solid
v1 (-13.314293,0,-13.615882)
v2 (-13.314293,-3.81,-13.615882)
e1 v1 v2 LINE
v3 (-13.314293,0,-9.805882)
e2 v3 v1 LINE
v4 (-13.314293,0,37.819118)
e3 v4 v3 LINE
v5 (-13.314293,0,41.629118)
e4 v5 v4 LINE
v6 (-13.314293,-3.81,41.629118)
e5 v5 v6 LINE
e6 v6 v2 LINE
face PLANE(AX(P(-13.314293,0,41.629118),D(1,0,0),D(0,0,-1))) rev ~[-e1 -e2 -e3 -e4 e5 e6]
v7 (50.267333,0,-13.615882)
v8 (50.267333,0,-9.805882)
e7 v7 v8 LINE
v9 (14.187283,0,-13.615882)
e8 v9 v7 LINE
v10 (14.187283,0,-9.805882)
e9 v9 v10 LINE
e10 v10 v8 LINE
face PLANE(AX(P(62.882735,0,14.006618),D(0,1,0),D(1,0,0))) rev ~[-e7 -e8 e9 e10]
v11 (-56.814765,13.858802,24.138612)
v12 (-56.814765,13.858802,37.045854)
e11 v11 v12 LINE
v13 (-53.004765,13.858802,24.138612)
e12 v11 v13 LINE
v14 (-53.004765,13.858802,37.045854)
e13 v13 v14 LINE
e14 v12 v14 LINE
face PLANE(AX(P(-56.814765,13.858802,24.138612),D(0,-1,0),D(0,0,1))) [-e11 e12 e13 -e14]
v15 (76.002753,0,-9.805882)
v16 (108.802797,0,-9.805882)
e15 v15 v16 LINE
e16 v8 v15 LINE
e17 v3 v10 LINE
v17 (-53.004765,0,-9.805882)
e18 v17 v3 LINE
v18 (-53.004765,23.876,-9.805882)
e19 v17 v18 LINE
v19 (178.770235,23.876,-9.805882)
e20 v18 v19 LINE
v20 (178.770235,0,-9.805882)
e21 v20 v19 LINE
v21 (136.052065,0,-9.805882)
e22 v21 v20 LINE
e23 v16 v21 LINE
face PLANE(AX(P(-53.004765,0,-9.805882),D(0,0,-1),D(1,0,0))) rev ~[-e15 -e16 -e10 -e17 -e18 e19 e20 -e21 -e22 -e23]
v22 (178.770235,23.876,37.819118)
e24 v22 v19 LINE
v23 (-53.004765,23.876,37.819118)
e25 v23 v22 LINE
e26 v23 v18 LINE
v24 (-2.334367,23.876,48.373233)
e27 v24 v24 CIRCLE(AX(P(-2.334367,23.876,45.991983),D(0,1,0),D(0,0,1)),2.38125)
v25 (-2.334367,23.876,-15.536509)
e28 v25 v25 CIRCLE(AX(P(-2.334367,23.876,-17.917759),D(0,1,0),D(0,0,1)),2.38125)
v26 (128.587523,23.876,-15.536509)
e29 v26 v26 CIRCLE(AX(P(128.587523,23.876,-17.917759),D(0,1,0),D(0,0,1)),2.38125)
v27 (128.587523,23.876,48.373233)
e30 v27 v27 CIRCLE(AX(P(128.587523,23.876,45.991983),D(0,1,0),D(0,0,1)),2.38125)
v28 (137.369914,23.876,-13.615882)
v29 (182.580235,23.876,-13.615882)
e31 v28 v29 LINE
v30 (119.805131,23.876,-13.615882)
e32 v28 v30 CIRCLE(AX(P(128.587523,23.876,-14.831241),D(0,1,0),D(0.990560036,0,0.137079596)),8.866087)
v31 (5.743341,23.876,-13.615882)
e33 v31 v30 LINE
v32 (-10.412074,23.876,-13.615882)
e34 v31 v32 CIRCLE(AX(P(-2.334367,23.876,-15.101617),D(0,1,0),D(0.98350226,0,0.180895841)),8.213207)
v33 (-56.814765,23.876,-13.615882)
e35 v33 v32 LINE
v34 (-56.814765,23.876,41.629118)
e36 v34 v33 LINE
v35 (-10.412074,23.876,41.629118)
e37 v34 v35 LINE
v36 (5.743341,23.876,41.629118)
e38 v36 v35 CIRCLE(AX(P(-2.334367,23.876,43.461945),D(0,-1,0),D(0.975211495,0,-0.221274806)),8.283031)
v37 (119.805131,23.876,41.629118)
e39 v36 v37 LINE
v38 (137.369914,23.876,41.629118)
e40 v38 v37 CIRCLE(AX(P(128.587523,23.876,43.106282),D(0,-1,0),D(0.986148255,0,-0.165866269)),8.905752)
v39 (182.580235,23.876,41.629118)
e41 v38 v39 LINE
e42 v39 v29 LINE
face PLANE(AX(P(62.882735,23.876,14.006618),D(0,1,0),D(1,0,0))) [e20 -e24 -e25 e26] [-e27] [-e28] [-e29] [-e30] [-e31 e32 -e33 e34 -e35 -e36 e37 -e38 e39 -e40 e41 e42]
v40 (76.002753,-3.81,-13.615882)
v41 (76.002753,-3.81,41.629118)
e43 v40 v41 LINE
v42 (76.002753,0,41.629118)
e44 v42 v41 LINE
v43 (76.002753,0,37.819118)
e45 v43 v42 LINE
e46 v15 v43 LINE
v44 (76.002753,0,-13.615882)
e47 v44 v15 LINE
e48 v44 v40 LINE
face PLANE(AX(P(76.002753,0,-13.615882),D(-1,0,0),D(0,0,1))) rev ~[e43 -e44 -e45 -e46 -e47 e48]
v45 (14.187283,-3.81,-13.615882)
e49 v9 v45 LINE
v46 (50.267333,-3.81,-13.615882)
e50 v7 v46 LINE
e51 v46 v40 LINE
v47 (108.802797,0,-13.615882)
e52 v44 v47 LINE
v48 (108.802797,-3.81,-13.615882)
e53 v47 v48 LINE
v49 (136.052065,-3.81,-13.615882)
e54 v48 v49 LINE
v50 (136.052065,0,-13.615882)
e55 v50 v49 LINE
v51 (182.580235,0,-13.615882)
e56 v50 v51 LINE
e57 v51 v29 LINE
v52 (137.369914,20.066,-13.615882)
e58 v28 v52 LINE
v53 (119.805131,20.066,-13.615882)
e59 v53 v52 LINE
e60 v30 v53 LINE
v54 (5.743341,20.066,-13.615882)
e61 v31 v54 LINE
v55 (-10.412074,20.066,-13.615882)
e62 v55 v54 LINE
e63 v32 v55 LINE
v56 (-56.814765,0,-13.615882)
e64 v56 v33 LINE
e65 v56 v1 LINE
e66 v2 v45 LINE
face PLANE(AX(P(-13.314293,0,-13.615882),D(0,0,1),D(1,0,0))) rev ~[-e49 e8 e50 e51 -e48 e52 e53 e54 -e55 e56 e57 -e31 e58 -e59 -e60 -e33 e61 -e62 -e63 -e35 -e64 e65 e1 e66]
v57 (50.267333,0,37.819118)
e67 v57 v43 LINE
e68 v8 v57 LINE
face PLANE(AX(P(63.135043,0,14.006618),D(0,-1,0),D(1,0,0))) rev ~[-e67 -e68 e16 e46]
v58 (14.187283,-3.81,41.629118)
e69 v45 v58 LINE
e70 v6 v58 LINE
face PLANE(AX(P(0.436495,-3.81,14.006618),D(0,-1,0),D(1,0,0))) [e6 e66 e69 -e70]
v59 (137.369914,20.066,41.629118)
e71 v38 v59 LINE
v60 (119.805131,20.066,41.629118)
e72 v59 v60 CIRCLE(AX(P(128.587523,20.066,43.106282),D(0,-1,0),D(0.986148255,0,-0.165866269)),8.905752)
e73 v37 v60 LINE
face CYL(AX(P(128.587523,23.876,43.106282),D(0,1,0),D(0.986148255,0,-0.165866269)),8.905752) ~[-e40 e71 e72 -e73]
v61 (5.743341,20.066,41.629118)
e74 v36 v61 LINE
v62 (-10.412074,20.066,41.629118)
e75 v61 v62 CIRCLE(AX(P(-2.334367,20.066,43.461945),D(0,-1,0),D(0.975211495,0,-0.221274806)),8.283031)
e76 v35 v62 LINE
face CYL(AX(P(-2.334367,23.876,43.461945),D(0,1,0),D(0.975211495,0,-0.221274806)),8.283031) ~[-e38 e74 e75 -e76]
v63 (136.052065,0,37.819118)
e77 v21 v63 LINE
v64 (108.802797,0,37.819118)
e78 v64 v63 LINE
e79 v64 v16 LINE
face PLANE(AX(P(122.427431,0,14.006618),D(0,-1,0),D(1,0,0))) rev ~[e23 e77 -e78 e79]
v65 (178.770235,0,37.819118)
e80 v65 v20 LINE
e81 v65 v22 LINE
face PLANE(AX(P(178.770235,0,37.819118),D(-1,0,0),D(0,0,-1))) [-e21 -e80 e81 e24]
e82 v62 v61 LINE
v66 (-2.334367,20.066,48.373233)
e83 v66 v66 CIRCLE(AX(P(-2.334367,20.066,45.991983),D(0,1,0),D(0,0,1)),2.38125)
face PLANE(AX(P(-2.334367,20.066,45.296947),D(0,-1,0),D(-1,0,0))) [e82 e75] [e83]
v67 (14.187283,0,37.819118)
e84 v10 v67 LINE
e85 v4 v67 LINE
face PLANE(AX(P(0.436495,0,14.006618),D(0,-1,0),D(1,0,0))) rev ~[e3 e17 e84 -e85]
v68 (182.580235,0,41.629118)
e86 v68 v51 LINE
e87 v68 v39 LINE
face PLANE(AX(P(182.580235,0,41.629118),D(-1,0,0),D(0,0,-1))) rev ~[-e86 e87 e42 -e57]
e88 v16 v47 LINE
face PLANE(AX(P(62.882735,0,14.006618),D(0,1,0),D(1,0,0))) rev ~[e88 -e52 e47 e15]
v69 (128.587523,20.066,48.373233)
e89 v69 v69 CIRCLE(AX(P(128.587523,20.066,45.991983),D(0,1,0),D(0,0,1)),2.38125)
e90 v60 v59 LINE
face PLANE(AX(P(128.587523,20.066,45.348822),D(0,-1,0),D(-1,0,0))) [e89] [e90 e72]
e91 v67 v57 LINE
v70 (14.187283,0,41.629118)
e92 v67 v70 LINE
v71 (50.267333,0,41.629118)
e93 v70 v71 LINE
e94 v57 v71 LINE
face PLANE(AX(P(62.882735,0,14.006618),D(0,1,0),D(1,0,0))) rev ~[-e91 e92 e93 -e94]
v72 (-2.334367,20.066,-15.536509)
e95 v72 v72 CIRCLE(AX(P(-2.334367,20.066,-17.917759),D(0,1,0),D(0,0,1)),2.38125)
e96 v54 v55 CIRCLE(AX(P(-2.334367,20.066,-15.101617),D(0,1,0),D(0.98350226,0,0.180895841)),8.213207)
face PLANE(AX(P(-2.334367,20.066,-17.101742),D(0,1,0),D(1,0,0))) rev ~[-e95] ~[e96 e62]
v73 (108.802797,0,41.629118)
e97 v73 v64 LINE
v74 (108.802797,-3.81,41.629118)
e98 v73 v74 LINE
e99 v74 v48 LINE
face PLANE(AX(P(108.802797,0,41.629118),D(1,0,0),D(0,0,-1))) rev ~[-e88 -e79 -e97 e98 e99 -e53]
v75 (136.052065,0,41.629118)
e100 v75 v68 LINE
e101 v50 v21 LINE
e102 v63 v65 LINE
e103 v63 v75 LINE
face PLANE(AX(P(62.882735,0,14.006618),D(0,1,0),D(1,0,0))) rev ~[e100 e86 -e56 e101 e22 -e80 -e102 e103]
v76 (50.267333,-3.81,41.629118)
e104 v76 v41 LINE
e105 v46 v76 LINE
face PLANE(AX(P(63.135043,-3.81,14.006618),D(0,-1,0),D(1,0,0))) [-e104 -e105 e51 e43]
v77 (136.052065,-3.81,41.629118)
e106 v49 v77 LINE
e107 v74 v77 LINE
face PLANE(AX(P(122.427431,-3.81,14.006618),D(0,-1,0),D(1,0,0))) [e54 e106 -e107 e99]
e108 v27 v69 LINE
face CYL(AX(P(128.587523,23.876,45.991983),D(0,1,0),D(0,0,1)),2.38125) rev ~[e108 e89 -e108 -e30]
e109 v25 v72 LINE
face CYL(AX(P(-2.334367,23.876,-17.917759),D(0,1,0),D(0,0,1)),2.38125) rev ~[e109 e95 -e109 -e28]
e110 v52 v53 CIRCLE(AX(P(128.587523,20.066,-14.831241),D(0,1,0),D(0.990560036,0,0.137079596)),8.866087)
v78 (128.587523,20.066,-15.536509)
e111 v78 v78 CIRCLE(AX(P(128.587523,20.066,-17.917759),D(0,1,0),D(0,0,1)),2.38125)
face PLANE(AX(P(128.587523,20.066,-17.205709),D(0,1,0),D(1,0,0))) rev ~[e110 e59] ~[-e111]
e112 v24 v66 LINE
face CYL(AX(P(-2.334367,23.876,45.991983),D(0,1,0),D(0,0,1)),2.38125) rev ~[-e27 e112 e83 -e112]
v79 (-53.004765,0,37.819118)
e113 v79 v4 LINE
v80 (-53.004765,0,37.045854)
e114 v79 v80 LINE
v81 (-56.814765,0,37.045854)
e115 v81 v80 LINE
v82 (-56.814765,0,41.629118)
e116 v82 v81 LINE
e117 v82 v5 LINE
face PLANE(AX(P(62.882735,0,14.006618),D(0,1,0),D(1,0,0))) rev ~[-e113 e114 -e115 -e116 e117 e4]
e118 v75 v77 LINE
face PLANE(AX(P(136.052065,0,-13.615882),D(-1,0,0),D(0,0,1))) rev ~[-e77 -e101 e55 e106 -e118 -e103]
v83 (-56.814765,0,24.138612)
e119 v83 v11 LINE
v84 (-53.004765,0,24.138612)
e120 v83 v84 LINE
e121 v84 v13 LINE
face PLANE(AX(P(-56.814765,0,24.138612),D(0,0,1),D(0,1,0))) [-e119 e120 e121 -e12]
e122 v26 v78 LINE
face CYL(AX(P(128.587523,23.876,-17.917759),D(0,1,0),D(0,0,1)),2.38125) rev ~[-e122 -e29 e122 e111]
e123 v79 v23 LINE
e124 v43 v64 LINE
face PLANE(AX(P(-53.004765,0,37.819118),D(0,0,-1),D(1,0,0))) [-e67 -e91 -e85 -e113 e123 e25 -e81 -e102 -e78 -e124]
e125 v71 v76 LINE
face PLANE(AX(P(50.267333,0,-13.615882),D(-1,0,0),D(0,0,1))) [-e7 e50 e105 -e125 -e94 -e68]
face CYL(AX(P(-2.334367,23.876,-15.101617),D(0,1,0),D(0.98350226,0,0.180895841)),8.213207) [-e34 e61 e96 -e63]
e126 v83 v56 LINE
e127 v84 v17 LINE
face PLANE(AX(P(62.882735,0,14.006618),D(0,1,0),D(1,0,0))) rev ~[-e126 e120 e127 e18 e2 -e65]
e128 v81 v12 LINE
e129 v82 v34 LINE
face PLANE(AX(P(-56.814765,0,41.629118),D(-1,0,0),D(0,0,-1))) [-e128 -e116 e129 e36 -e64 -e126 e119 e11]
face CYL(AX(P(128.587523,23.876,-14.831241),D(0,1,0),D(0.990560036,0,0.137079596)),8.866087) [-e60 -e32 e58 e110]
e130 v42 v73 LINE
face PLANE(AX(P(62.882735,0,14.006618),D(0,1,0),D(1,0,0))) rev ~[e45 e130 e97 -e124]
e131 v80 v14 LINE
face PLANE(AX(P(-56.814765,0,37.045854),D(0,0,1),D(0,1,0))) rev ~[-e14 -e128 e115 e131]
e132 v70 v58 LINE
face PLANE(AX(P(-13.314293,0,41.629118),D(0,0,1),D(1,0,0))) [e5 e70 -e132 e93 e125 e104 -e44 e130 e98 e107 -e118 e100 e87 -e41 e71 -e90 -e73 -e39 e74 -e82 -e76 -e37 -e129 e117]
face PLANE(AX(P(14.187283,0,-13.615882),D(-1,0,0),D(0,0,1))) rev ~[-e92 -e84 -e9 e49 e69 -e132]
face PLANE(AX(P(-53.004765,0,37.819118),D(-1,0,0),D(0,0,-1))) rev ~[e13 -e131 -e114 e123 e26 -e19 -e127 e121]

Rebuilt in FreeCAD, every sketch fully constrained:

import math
import FreeCAD as App
import Part
import Sketcher

V = App.Vector
Q = App.Units.Quantity


def add_polygon(sketch, points):
    """Adds a closed chain of lines whose ends are joined by coincident constraints."""
    first, n = sketch.GeometryCount, len(points)
    for a, b in zip(points, points[1:] + points[:1]):
        sketch.addGeometry(Part.LineSegment(App.Vector(*a, 0), App.Vector(*b, 0)), False)
    for i in range(n):
        sketch.addConstraint(Sketcher.Constraint("Coincident", first + i, 2, first + (i + 1) % n, 1))

doc = App.newDocument("Part")
params = doc.addObject("Spreadsheet::Sheet", "Params")
for row, (alias, value) in enumerate([
    ("sketch1_width", "9.425 in"),
    ("sketch1_width2", "9.125 in"),
    ("sketch1_height", "2.175 in"),
    ("sketch1_height2", "1.875 in"),
    ("pad1_length", "0.94 in"),
    ("sketch2_height", "2.175 in"),
    ("pad2_length", "0.15 in"),
    ("pocket1_length", "0.15 in"),
    ("sketch4_diameter", "0.1875 in"),
    ("pad3_length", "0.15 in"),
], start=1):
    params.set(f"A{row}", alias)
    params.set(f"B{row}", "=" + value)
    params.setAlias(f"B{row}", alias)

body = doc.addObject("PartDesign::Body", "Body")

sketch1 = body.newObject("Sketcher::SketchObject", "Sketch")
sketch1.AttachmentSupport = (doc.getObject("XZ_Plane"), [""])
sketch1.MapMode = "FlatFace"
add_polygon(sketch1, [(-56.814765, -13.615882), (-56.814765, 41.629118), (182.580235, 41.629118), (182.580235, -13.615882)])
add_polygon(sketch1, [(178.770235, 37.819118), (-53.004765, 37.819118), (-53.004765, -9.805882), (178.770235, -9.805882)])
sketch1.addConstraint([
    Sketcher.Constraint("Vertical", 0),
    Sketcher.Constraint("Horizontal", 1),
    Sketcher.Constraint("Vertical", 2),
    Sketcher.Constraint("Horizontal", 3),
    Sketcher.Constraint("Horizontal", 4),
    Sketcher.Constraint("Vertical", 5),
    Sketcher.Constraint("Horizontal", 6),
    Sketcher.Constraint("Vertical", 7),
    Sketcher.Constraint("DistanceX", 1, 1, 1, 2, Q("9.425 in")),
    Sketcher.Constraint("DistanceX", 4, 2, 4, 1, Q("9.125 in")),
    Sketcher.Constraint("DistanceY", 0, 1, 0, 2, Q("2.175 in")),
    Sketcher.Constraint("DistanceY", 5, 2, 5, 1, Q("1.875 in")),
    Sketcher.Constraint("DistanceX", 0, 2, 4, 2, Q("0.15 in")),
    Sketcher.Constraint("DistanceY", 4, 2, 0, 2, Q("0.15 in")),
    Sketcher.Constraint("DistanceY", -1, 1, 0, 2, Q("41.629118 mm")),
    Sketcher.Constraint("DistanceX", 0, 2, -1, 1, Q("56.814765 mm")),
])
sketch1.setExpression("Constraints[16]", "Params.sketch1_width")
sketch1.setExpression("Constraints[17]", "Params.sketch1_width2")
sketch1.setExpression("Constraints[18]", "Params.sketch1_height")
sketch1.setExpression("Constraints[19]", "Params.sketch1_height2")
pad1 = body.newObject("PartDesign::Pad", "Pad")
pad1.Profile = sketch1
pad1.setExpression("Length", "Params.pad1_length")
pad1.Reversed = True

sketch2 = body.newObject("Sketcher::SketchObject", "Sketch001")
sketch2.AttachmentSupport = (doc.getObject("XZ_Plane"), [""])
sketch2.MapMode = "FlatFace"
add_polygon(sketch2, [(14.187283, 41.629118), (-13.314293, 41.629118), (-13.314293, -13.615882), (14.187283, -13.615882)])
add_polygon(sketch2, [(136.052065, 41.629118), (108.802797, 41.629118), (108.802797, -13.615882), (136.052065, -13.615882)])
add_polygon(sketch2, [(50.267333, 41.629118), (50.267333, -13.615882), (76.002753, -13.615882), (76.002753, 41.629118)])
sketch2.addConstraint([
    Sketcher.Constraint("Horizontal", 0),
    Sketcher.Constraint("Vertical", 1),
    Sketcher.Constraint("Horizontal", 2),
    Sketcher.Constraint("Vertical", 3),
    Sketcher.Constraint("Horizontal", 4),
    Sketcher.Constraint("Vertical", 5),
    Sketcher.Constraint("Horizontal", 6),
    Sketcher.Constraint("Vertical", 7),
    Sketcher.Constraint("Vertical", 8),
    Sketcher.Constraint("Horizontal", 9),
    Sketcher.Constraint("Vertical", 10),
    Sketcher.Constraint("Horizontal", 11),
    Sketcher.Constraint("Horizontal", 3, 2, 4, 2),
    Sketcher.Constraint("Horizontal", 2, 2, 5, 2),
    Sketcher.Constraint("Horizontal", 6, 2, 8, 2),
    Sketcher.Constraint("Horizontal", 7, 2, 10, 2),
    Sketcher.Constraint("DistanceY", 1, 2, 1, 1, Q("2.175 in")),
    Sketcher.Constraint("DistanceX", 4, 2, 4, 1, Q("27.249268 mm")),
    Sketcher.Constraint("DistanceX", 9, 1, 9, 2, Q("25.73542 mm")),
    Sketcher.Constraint("DistanceX", 0, 2, 0, 1, Q("27.501576 mm")),
    Sketcher.Constraint("DistanceY", -1, 1, 0, 2, Q("41.629118 mm")),
    Sketcher.Constraint("DistanceX", 0, 2, 4, 2, Q("122.11709 mm")),
    Sketcher.Constraint("DistanceX", 2, 2, 8, 2, Q("36.080049 mm")),
    Sketcher.Constraint("DistanceX", 0, 2, -1, 1, Q("13.314293 mm")),
])
sketch2.setExpression("Constraints[28]", "Params.sketch2_height")
pad2 = body.newObject("PartDesign::Pad", "Pad001")
pad2.Profile = sketch2
pad2.setExpression("Length", "Params.pad2_length")

sketch3 = body.newObject("Sketcher::SketchObject", "Sketch002")
sketch3.AttachmentSupport = (doc.getObject("YZ_Plane"), [""])
sketch3.MapMode = "FlatFace"
sketch3.AttachmentOffset = App.Placement(V(0, 0, -56.814765), App.Rotation())
add_polygon(sketch3, [(13.858802, 24.138612), (0, 24.138612), (0, 37.045854), (13.858802, 37.045854)])
sketch3.addConstraint([
    Sketcher.Constraint("Horizontal", 0),
    Sketcher.Constraint("Vertical", 1),
    Sketcher.Constraint("Horizontal", 2),
    Sketcher.Constraint("Vertical", 3),
    Sketcher.Constraint("PointOnObject", 0, 2, -2),
    Sketcher.Constraint("DistanceX", 0, 2, 0, 1, Q("13.858802 mm")),
    Sketcher.Constraint("DistanceY", 1, 1, 1, 2, Q("12.907243 mm")),
    Sketcher.Constraint("DistanceY", -1, 1, 0, 2, Q("24.138612 mm")),
])
pocket1 = body.newObject("PartDesign::Pocket", "Pocket")
pocket1.Profile = sketch3
pocket1.setExpression("Length", "Params.pocket1_length")
pocket1.Reversed = True

sketch4 = body.newObject("Sketcher::SketchObject", "Sketch003")
sketch4.AttachmentSupport = (doc.getObject("XZ_Plane"), [""])
sketch4.MapMode = "FlatFace"
sketch4.AttachmentOffset = App.Placement(V(0, 0, -0.94 * 25.4), App.Rotation())
sketch4.addGeometry([
    Part.LineSegment(V(-10.412074, -13.615882, 0), V(5.743341, -13.615882, 0)),
    Part.ArcOfCircle(Part.Circle(V(-2.334367, -15.101617, 0), V(0, 0, 1), 8.213207), math.radians(169.578056), math.radians(370.421944)),
    Part.Circle(V(-2.334367, -17.917759, 0), V(0, 0, 1), 2.38125),
    Part.LineSegment(V(5.743341, 41.629118, 0), V(-10.412074, 41.629118, 0)),
    Part.ArcOfCircle(Part.Circle(V(-2.334367, 43.461945, 0), V(0, 0, 1), 8.283031), math.radians(-12.78392), math.radians(192.78392)),
    Part.Circle(V(-2.334367, 45.991983, 0), V(0, 0, 1), 2.38125),
    Part.LineSegment(V(137.369914, 41.629118, 0), V(119.805131, 41.629118, 0)),
    Part.ArcOfCircle(Part.Circle(V(128.587523, 43.106282, 0), V(0, 0, 1), 8.905752), math.radians(-9.547561), math.radians(189.547561)),
    Part.Circle(V(128.587523, 45.991983, 0), V(0, 0, 1), 2.38125),
    Part.LineSegment(V(119.805131, -13.615882, 0), V(137.369914, -13.615882, 0)),
    Part.ArcOfCircle(Part.Circle(V(128.587523, -14.831241, 0), V(0, 0, 1), 8.866087), math.radians(172.12111), math.radians(367.87889)),
    Part.Circle(V(128.587523, -17.917759, 0), V(0, 0, 1), 2.38125),
], False)
sketch4.addConstraint([
    Sketcher.Constraint("Coincident", 0, 1, 1, 1),
    Sketcher.Constraint("Coincident", 1, 2, 0, 2),
    Sketcher.Constraint("Coincident", 3, 1, 4, 1),
    Sketcher.Constraint("Coincident", 4, 2, 3, 2),
    Sketcher.Constraint("Coincident", 6, 1, 7, 1),
    Sketcher.Constraint("Coincident", 7, 2, 6, 2),
    Sketcher.Constraint("Coincident", 9, 1, 10, 1),
    Sketcher.Constraint("Coincident", 10, 2, 9, 2),
    Sketcher.Constraint("Horizontal", 0),
    Sketcher.Constraint("Horizontal", 3),
    Sketcher.Constraint("Horizontal", 6),
    Sketcher.Constraint("Horizontal", 9),
    Sketcher.Constraint("Equal", 2, 5),
    Sketcher.Constraint("Equal", 5, 8),
    Sketcher.Constraint("Equal", 8, 11),
    Sketcher.Constraint("Horizontal", 5, 3, 8, 3),
    Sketcher.Constraint("Horizontal", 2, 3, 11, 3),
    Sketcher.Constraint("Horizontal", 4, 2, 6, 1),
    Sketcher.Constraint("Horizontal", 1, 2, 9, 1),
    Sketcher.Constraint("Vertical", 1, 3, 2, 3),
    Sketcher.Constraint("Vertical", 2, 3, 4, 3),
    Sketcher.Constraint("Vertical", 4, 3, 5, 3),
    Sketcher.Constraint("Vertical", 7, 3, 8, 3),
    Sketcher.Constraint("Vertical", 8, 3, 10, 3),
    Sketcher.Constraint("Vertical", 10, 3, 11, 3),
    Sketcher.Constraint("Vertical", 1, 2, 3, 1),
    Sketcher.Constraint("Vertical", 7, 2, 9, 1),
    Sketcher.Constraint("Diameter", 2, Q("0.1875 in")),
    Sketcher.Constraint("Radius", 4, Q("8.283031 mm")),
    Sketcher.Constraint("Radius", 7, Q("8.905752 mm")),
    Sketcher.Constraint("DistanceY", 1, 2, 3, 1, Q("2.175 in")),
    Sketcher.Constraint("DistanceY", -1, 1, 4, 3, Q("1.7111002 in")),
    Sketcher.Constraint("Radius", 1, Q("8.213207 mm")),
    Sketcher.Constraint("Radius", 10, Q("8.866087 mm")),
    Sketcher.Constraint("DistanceY", 1, 3, 5, 3, Q("61.0936 mm")),
    Sketcher.Constraint("DistanceY", 7, 3, 5, 3, Q("2.885701 mm")),
    Sketcher.Constraint("DistanceX", 0, 1, 0, 2, Q("16.155415 mm")),
    Sketcher.Constraint("DistanceY", 2, 3, -1, 1, Q("17.917759 mm")),
    Sketcher.Constraint("DistanceX", -1, 1, 1, 2, Q("5.743341 mm")),
    Sketcher.Constraint("DistanceX", -1, 1, 7, 2, Q("119.805131 mm")),
])
sketch4.setExpression("Constraints[27]", "Params.sketch4_diameter")
pad3 = body.newObject("PartDesign::Pad", "Pad002")
pad3.Profile = sketch4
pad3.setExpression("Length", "Params.pad3_length")

doc.recompute()
